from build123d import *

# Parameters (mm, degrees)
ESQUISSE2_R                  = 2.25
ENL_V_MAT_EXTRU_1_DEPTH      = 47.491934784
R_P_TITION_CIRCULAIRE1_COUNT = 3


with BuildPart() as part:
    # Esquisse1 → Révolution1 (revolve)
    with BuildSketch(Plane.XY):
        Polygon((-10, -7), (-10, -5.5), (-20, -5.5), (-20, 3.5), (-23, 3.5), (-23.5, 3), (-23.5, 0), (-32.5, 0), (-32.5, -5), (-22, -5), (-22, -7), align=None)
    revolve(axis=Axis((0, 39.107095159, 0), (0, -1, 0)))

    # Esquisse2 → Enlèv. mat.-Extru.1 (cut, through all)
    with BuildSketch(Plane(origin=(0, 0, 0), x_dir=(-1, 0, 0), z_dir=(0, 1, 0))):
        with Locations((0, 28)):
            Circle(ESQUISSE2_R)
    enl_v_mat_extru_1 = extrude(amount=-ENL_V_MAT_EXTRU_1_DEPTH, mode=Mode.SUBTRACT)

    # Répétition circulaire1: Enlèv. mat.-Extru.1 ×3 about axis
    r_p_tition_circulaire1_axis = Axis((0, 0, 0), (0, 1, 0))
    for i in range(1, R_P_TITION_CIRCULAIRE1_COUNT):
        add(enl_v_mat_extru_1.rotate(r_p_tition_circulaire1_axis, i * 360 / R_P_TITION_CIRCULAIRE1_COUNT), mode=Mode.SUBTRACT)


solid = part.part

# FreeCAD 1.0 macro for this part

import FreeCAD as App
import Part
import Sketcher

V = App.Vector
Q = App.Units.Quantity


def add_polygon(sketch, points):
    """Adds a closed chain of lines whose ends are joined by coincident constraints."""
    first, n = sketch.GeometryCount, len(points)
    for a, b in zip(points, points[1:] + points[:1]):
        sketch.addGeometry(Part.LineSegment(App.Vector(*a, 0), App.Vector(*b, 0)), False)
    for i in range(n):
        sketch.addConstraint(Sketcher.Constraint("Coincident", first + i, 2, first + (i + 1) % n, 1))

doc = App.newDocument("Part")
body = doc.addObject("PartDesign::Body", "Body")

# Sketch on XY plane
sketch1 = body.newObject("Sketcher::SketchObject", "Sketch")
sketch1.AttachmentSupport = (doc.getObject("XY_Plane"), [""])
sketch1.MapMode = "FlatFace"
add_polygon(sketch1, [(-10, -7), (-10, -5.5), (-20, -5.5), (-20, 3.5), (-23, 3.5), (-23.5, 3), (-23.5, 0), (-32.5, 0), (-32.5, -5), (-22, -5), (-22, -7)])  # lines 0-10
sketch1.addConstraint([
    Sketcher.Constraint("Vertical", 0),
    Sketcher.Constraint("Horizontal", 1),
    Sketcher.Constraint("Vertical", 2),
    Sketcher.Constraint("Horizontal", 3),
    Sketcher.Constraint("Vertical", 5),
    Sketcher.Constraint("Horizontal", 6),
    Sketcher.Constraint("Vertical", 7),
    Sketcher.Constraint("Horizontal", 8),
    Sketcher.Constraint("Vertical", 9),
    Sketcher.Constraint("Horizontal", 10),
    Sketcher.Constraint("PointOnObject", 5, 2, -1),
    Sketcher.Constraint("Equal", 6, 2),
    Sketcher.Constraint("Equal", 3, 5),
    Sketcher.Constraint("DistanceX", 1, 2, 1, 1, Q("10 mm")),
    Sketcher.Constraint("DistanceX", 3, 2, 3, 1, Q("3 mm")),
    Sketcher.Constraint("DistanceX", 6, 2, 6, 1, Q("9 mm")),
    Sketcher.Constraint("DistanceX", 10, 1, 10, 2, Q("12 mm")),
    Sketcher.Constraint("DistanceY", 7, 2, 7, 1, Q("5 mm")),
    Sketcher.Constraint("DistanceY", 9, 2, 9, 1, Q("2 mm")),
    Sketcher.Constraint("Angle", 4, Q("-135 deg")),
    Sketcher.Constraint("DistanceX", 8, 1, 8, 2, Q("10.5 mm")),
    Sketcher.Constraint("DistanceX", 0, 2, -1, 1, Q("10 mm")),
])
revolution = body.newObject("PartDesign::Revolution", "Revolution")
revolution.Profile = sketch1
revolution.ReferenceAxis = (sketch1, ["V_Axis"])
revolution.Angle = 360

# Sketch on XZ plane
sketch2 = body.newObject("Sketcher::SketchObject", "Sketch001")
sketch2.AttachmentSupport = (doc.getObject("XZ_Plane"), [""])
sketch2.MapMode = "FlatFace"
sketch2.addGeometry(Part.Circle(V(0, 28, 0), V(0, 0, 1), 2.2), False)
sketch2.addConstraint([
    Sketcher.Constraint("PointOnObject", 0, 3, -2),
    Sketcher.Constraint("Diameter", 0, Q("4.5 mm")),
    Sketcher.Constraint("DistanceY", -1, 1, 0, 3, Q("28 mm")),
])
pocket1 = body.newObject("PartDesign::Pocket", "Pocket")
pocket1.Profile = sketch2
pocket1.Type = "ThroughAll"
pocket1.Reversed = True
doc.recompute()

polarpattern = body.newObject("PartDesign::PolarPattern", "PolarPattern")
polarpattern.Originals = [pocket1]
polarpattern.Axis = (doc.getObject("Y_Axis"), [""])
polarpattern.Angle = 360
polarpattern.Occurrences = 3
body.Tip = polarpattern

doc.recompute()
